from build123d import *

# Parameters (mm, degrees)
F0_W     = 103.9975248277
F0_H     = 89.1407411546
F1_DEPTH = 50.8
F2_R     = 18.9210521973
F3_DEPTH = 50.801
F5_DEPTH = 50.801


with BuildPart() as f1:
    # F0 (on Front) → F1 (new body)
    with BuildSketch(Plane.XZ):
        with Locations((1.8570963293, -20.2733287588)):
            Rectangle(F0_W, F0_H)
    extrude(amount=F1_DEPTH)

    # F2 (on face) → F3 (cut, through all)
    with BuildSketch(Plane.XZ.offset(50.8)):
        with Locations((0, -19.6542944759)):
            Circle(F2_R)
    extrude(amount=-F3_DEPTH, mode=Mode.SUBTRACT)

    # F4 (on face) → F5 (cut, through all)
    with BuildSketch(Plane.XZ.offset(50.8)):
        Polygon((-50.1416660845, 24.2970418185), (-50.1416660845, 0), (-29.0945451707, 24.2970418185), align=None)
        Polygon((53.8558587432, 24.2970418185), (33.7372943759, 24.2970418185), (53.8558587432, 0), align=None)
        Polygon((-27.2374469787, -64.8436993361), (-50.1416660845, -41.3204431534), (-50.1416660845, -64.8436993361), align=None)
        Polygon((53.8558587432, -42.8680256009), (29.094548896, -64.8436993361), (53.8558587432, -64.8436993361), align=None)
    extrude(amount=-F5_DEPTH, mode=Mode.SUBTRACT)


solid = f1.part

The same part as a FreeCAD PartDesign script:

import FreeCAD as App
import Part
import Sketcher
from FreeCAD import Vector
Q = App.Units.Quantity

doc = App.newDocument("Part")
params = doc.addObject("Spreadsheet::Sheet", "Params")
for row, (alias, value) in enumerate([
    ("pad1_length", "2 in"),
], start=1):
    params.set(f"A{row}", alias)
    params.set(f"B{row}", "=" + value)
    params.setAlias(f"B{row}", alias)

body = doc.addObject("PartDesign::Body", "Body")

# Sketch on XZ plane
sketch1 = doc.addObject("Sketcher::SketchObject", "Sketch")
body.addObject(sketch1)
sketch1.AttachmentSupport = (doc.XZ_Plane, [""])
sketch1.MapMode = "FlatFace"
sketch1.addGeometry(Part.LineSegment(Vector(-50, 24, 0), Vector(-50, -65, 0)), False)
sketch1.addGeometry(Part.LineSegment(Vector(-50, -65, 0), Vector(54, -65, 0)), False)
sketch1.addGeometry(Part.LineSegment(Vector(54, -65, 0), Vector(54, 24, 0)), False)
sketch1.addGeometry(Part.LineSegment(Vector(54, 24, 0), Vector(-50, 24, 0)), False)
sketch1.addConstraint(Sketcher.Constraint("Coincident", 0, 2, 1, 1))
sketch1.addConstraint(Sketcher.Constraint("Coincident", 1, 2, 2, 1))
sketch1.addConstraint(Sketcher.Constraint("Coincident", 2, 2, 3, 1))
sketch1.addConstraint(Sketcher.Constraint("Coincident", 3, 2, 0, 1))
sketch1.addConstraint(Sketcher.Constraint("Vertical", 0))
sketch1.addConstraint(Sketcher.Constraint("Horizontal", 1))
sketch1.addConstraint(Sketcher.Constraint("Vertical", 2))
sketch1.addConstraint(Sketcher.Constraint("Horizontal", 3))
sketch1.addConstraint(Sketcher.Constraint("DistanceY", 0, 2, 0, 1, Q("89.140741 mm")))
sketch1.addConstraint(Sketcher.Constraint("DistanceY", 0, 2, -1, 1, Q("64.843699 mm")))
sketch1.addConstraint(Sketcher.Constraint("DistanceX", 1, 1, 1, 2, Q("103.997525 mm")))
sketch1.addConstraint(Sketcher.Constraint("DistanceX", -1, 1, 1, 2, Q("53.855859 mm")))
pad1 = doc.addObject("PartDesign::Pad", "Pad")
body.addObject(pad1)
pad1.Profile = sketch1
pad1.setExpression("Length", "Params.pad1_length")

# Sketch on XZ plane
sketch2 = doc.addObject("Sketcher::SketchObject", "Sketch001")
body.addObject(sketch2)
sketch2.AttachmentSupport = (doc.XZ_Plane, [""])
sketch2.MapMode = "FlatFace"
sketch2.AttachmentOffset = App.Placement(Vector(0, 0, 2 * 25.4), App.Rotation())
sketch2.addGeometry(Part.Circle(Vector(0, -20, 0), Vector(0, 0, 1), 19), False)
sketch2.addConstraint(Sketcher.Constraint("PointOnObject", 0, 3, -2))
sketch2.addConstraint(Sketcher.Constraint("Diameter", 0, Q("37.842104 mm")))
sketch2.addConstraint(Sketcher.Constraint("DistanceY", 0, 3, -1, 1, Q("19.654294 mm")))
pocket1 = doc.addObject("PartDesign::Pocket", "Pocket")
body.addObject(pocket1)
pocket1.Profile = sketch2
pocket1.Type = "ThroughAll"

# Sketch on XZ plane
sketch3 = doc.addObject("Sketcher::SketchObject", "Sketch002")
body.addObject(sketch3)
sketch3.AttachmentSupport = (doc.XZ_Plane, [""])
sketch3.MapMode = "FlatFace"
sketch3.AttachmentOffset = App.Placement(Vector(0, 0, 2 * 25.4), App.Rotation())
sketch3.addGeometry(Part.LineSegment(Vector(-50, 24, 0), Vector(-50, 0, 0)), False)
sketch3.addGeometry(Part.LineSegment(Vector(-50, 0, 0), Vector(-29, 24, 0)), False)
sketch3.addGeometry(Part.LineSegment(Vector(-29, 24, 0), Vector(-50, 24, 0)), False)
sketch3.addGeometry(Part.LineSegment(Vector(54, 24, 0), Vector(34, 24, 0)), False)
sketch3.addGeometry(Part.LineSegment(Vector(34, 24, 0), Vector(54, 0, 0)), False)
sketch3.addGeometry(Part.LineSegment(Vector(54, 0, 0), Vector(54, 24, 0)), False)
sketch3.addGeometry(Part.LineSegment(Vector(-27, -65, 0), Vector(-50, -41, 0)), False)
sketch3.addGeometry(Part.LineSegment(Vector(-50, -41, 0), Vector(-50, -65, 0)), False)
sketch3.addGeometry(Part.LineSegment(Vector(-50, -65, 0), Vector(-27, -65, 0)), False)
sketch3.addGeometry(Part.LineSegment(Vector(54, -43, 0), Vector(29, -65, 0)), False)
sketch3.addGeometry(Part.LineSegment(Vector(29, -65, 0), Vector(54, -65, 0)), False)
sketch3.addGeometry(Part.LineSegment(Vector(54, -65, 0), Vector(54, -43, 0)), False)
sketch3.addConstraint(Sketcher.Constraint("Coincident", 0, 2, 1, 1))
sketch3.addConstraint(Sketcher.Constraint("Coincident", 1, 2, 2, 1))
sketch3.addConstraint(Sketcher.Constraint("Coincident", 2, 2, 0, 1))
sketch3.addConstraint(Sketcher.Constraint("Coincident", 3, 2, 4, 1))
sketch3.addConstraint(Sketcher.Constraint("Coincident", 4, 2, 5, 1))
sketch3.addConstraint(Sketcher.Constraint("Coincident", 5, 2, 3, 1))
sketch3.addConstraint(Sketcher.Constraint("Coincident", 6, 2, 7, 1))
sketch3.addConstraint(Sketcher.Constraint("Coincident", 7, 2, 8, 1))
sketch3.addConstraint(Sketcher.Constraint("Coincident", 8, 2, 6, 1))
sketch3.addConstraint(Sketcher.Constraint("Coincident", 9, 2, 10, 1))
sketch3.addConstraint(Sketcher.Constraint("Coincident", 10, 2, 11, 1))
sketch3.addConstraint(Sketcher.Constraint("Coincident", 11, 2, 9, 1))
sketch3.addConstraint(Sketcher.Constraint("Vertical", 0))
sketch3.addConstraint(Sketcher.Constraint("Horizontal", 2))
sketch3.addConstraint(Sketcher.Constraint("Horizontal", 3))
sketch3.addConstraint(Sketcher.Constraint("Vertical", 5))
sketch3.addConstraint(Sketcher.Constraint("Vertical", 7))
sketch3.addConstraint(Sketcher.Constraint("Horizontal", 8))
sketch3.addConstraint(Sketcher.Constraint("Horizontal", 10))
sketch3.addConstraint(Sketcher.Constraint("Vertical", 11))
sketch3.addConstraint(Sketcher.Constraint("PointOnObject", 0, 2, -1))
sketch3.addConstraint(Sketcher.Constraint("PointOnObject", 4, 2, -1))
sketch3.addConstraint(Sketcher.Constraint("Horizontal", 2, 2, 3, 2))
sketch3.addConstraint(Sketcher.Constraint("Horizontal", 8, 2, 9, 2))
sketch3.addConstraint(Sketcher.Constraint("Vertical", 2, 2, 6, 2))
sketch3.addConstraint(Sketcher.Constraint("Vertical", 5, 2, 10, 2))
sketch3.addConstraint(Sketcher.Constraint("Distance", 6, Q("32.832101 mm")))
sketch3.addConstraint(Sketcher.Constraint("DistanceX", 2, 2, 2, 1, Q("21.047121 mm")))
sketch3.addConstraint(Sketcher.Constraint("DistanceX", 8, 1, 8, 2, Q("22.904219 mm")))
sketch3.addConstraint(Sketcher.Constraint("DistanceX", 10, 1, 10, 2, Q("24.76131 mm")))
sketch3.addConstraint(Sketcher.Constraint("DistanceY", 0, 2, 0, 1, Q("24.297042 mm")))
sketch3.addConstraint(Sketcher.Constraint("DistanceY", 7, 2, -1, 1, Q("64.843699 mm")))
sketch3.addConstraint(Sketcher.Constraint("Distance", 4, Q("31.545251 mm")))
sketch3.addConstraint(Sketcher.Constraint("DistanceY", 11, 1, 11, 2, Q("21.975674 mm")))
sketch3.addConstraint(Sketcher.Constraint("DistanceX", -1, 1, 4, 2, Q("53.855859 mm")))
sketch3.addConstraint(Sketcher.Constraint("DistanceX", 1, 2, 3, 2, Q("62.83184 mm")))
pocket2 = doc.addObject("PartDesign::Pocket", "Pocket001")
body.addObject(pocket2)
pocket2.Profile = sketch3
pocket2.Type = "ThroughAll"

doc.recompute()
